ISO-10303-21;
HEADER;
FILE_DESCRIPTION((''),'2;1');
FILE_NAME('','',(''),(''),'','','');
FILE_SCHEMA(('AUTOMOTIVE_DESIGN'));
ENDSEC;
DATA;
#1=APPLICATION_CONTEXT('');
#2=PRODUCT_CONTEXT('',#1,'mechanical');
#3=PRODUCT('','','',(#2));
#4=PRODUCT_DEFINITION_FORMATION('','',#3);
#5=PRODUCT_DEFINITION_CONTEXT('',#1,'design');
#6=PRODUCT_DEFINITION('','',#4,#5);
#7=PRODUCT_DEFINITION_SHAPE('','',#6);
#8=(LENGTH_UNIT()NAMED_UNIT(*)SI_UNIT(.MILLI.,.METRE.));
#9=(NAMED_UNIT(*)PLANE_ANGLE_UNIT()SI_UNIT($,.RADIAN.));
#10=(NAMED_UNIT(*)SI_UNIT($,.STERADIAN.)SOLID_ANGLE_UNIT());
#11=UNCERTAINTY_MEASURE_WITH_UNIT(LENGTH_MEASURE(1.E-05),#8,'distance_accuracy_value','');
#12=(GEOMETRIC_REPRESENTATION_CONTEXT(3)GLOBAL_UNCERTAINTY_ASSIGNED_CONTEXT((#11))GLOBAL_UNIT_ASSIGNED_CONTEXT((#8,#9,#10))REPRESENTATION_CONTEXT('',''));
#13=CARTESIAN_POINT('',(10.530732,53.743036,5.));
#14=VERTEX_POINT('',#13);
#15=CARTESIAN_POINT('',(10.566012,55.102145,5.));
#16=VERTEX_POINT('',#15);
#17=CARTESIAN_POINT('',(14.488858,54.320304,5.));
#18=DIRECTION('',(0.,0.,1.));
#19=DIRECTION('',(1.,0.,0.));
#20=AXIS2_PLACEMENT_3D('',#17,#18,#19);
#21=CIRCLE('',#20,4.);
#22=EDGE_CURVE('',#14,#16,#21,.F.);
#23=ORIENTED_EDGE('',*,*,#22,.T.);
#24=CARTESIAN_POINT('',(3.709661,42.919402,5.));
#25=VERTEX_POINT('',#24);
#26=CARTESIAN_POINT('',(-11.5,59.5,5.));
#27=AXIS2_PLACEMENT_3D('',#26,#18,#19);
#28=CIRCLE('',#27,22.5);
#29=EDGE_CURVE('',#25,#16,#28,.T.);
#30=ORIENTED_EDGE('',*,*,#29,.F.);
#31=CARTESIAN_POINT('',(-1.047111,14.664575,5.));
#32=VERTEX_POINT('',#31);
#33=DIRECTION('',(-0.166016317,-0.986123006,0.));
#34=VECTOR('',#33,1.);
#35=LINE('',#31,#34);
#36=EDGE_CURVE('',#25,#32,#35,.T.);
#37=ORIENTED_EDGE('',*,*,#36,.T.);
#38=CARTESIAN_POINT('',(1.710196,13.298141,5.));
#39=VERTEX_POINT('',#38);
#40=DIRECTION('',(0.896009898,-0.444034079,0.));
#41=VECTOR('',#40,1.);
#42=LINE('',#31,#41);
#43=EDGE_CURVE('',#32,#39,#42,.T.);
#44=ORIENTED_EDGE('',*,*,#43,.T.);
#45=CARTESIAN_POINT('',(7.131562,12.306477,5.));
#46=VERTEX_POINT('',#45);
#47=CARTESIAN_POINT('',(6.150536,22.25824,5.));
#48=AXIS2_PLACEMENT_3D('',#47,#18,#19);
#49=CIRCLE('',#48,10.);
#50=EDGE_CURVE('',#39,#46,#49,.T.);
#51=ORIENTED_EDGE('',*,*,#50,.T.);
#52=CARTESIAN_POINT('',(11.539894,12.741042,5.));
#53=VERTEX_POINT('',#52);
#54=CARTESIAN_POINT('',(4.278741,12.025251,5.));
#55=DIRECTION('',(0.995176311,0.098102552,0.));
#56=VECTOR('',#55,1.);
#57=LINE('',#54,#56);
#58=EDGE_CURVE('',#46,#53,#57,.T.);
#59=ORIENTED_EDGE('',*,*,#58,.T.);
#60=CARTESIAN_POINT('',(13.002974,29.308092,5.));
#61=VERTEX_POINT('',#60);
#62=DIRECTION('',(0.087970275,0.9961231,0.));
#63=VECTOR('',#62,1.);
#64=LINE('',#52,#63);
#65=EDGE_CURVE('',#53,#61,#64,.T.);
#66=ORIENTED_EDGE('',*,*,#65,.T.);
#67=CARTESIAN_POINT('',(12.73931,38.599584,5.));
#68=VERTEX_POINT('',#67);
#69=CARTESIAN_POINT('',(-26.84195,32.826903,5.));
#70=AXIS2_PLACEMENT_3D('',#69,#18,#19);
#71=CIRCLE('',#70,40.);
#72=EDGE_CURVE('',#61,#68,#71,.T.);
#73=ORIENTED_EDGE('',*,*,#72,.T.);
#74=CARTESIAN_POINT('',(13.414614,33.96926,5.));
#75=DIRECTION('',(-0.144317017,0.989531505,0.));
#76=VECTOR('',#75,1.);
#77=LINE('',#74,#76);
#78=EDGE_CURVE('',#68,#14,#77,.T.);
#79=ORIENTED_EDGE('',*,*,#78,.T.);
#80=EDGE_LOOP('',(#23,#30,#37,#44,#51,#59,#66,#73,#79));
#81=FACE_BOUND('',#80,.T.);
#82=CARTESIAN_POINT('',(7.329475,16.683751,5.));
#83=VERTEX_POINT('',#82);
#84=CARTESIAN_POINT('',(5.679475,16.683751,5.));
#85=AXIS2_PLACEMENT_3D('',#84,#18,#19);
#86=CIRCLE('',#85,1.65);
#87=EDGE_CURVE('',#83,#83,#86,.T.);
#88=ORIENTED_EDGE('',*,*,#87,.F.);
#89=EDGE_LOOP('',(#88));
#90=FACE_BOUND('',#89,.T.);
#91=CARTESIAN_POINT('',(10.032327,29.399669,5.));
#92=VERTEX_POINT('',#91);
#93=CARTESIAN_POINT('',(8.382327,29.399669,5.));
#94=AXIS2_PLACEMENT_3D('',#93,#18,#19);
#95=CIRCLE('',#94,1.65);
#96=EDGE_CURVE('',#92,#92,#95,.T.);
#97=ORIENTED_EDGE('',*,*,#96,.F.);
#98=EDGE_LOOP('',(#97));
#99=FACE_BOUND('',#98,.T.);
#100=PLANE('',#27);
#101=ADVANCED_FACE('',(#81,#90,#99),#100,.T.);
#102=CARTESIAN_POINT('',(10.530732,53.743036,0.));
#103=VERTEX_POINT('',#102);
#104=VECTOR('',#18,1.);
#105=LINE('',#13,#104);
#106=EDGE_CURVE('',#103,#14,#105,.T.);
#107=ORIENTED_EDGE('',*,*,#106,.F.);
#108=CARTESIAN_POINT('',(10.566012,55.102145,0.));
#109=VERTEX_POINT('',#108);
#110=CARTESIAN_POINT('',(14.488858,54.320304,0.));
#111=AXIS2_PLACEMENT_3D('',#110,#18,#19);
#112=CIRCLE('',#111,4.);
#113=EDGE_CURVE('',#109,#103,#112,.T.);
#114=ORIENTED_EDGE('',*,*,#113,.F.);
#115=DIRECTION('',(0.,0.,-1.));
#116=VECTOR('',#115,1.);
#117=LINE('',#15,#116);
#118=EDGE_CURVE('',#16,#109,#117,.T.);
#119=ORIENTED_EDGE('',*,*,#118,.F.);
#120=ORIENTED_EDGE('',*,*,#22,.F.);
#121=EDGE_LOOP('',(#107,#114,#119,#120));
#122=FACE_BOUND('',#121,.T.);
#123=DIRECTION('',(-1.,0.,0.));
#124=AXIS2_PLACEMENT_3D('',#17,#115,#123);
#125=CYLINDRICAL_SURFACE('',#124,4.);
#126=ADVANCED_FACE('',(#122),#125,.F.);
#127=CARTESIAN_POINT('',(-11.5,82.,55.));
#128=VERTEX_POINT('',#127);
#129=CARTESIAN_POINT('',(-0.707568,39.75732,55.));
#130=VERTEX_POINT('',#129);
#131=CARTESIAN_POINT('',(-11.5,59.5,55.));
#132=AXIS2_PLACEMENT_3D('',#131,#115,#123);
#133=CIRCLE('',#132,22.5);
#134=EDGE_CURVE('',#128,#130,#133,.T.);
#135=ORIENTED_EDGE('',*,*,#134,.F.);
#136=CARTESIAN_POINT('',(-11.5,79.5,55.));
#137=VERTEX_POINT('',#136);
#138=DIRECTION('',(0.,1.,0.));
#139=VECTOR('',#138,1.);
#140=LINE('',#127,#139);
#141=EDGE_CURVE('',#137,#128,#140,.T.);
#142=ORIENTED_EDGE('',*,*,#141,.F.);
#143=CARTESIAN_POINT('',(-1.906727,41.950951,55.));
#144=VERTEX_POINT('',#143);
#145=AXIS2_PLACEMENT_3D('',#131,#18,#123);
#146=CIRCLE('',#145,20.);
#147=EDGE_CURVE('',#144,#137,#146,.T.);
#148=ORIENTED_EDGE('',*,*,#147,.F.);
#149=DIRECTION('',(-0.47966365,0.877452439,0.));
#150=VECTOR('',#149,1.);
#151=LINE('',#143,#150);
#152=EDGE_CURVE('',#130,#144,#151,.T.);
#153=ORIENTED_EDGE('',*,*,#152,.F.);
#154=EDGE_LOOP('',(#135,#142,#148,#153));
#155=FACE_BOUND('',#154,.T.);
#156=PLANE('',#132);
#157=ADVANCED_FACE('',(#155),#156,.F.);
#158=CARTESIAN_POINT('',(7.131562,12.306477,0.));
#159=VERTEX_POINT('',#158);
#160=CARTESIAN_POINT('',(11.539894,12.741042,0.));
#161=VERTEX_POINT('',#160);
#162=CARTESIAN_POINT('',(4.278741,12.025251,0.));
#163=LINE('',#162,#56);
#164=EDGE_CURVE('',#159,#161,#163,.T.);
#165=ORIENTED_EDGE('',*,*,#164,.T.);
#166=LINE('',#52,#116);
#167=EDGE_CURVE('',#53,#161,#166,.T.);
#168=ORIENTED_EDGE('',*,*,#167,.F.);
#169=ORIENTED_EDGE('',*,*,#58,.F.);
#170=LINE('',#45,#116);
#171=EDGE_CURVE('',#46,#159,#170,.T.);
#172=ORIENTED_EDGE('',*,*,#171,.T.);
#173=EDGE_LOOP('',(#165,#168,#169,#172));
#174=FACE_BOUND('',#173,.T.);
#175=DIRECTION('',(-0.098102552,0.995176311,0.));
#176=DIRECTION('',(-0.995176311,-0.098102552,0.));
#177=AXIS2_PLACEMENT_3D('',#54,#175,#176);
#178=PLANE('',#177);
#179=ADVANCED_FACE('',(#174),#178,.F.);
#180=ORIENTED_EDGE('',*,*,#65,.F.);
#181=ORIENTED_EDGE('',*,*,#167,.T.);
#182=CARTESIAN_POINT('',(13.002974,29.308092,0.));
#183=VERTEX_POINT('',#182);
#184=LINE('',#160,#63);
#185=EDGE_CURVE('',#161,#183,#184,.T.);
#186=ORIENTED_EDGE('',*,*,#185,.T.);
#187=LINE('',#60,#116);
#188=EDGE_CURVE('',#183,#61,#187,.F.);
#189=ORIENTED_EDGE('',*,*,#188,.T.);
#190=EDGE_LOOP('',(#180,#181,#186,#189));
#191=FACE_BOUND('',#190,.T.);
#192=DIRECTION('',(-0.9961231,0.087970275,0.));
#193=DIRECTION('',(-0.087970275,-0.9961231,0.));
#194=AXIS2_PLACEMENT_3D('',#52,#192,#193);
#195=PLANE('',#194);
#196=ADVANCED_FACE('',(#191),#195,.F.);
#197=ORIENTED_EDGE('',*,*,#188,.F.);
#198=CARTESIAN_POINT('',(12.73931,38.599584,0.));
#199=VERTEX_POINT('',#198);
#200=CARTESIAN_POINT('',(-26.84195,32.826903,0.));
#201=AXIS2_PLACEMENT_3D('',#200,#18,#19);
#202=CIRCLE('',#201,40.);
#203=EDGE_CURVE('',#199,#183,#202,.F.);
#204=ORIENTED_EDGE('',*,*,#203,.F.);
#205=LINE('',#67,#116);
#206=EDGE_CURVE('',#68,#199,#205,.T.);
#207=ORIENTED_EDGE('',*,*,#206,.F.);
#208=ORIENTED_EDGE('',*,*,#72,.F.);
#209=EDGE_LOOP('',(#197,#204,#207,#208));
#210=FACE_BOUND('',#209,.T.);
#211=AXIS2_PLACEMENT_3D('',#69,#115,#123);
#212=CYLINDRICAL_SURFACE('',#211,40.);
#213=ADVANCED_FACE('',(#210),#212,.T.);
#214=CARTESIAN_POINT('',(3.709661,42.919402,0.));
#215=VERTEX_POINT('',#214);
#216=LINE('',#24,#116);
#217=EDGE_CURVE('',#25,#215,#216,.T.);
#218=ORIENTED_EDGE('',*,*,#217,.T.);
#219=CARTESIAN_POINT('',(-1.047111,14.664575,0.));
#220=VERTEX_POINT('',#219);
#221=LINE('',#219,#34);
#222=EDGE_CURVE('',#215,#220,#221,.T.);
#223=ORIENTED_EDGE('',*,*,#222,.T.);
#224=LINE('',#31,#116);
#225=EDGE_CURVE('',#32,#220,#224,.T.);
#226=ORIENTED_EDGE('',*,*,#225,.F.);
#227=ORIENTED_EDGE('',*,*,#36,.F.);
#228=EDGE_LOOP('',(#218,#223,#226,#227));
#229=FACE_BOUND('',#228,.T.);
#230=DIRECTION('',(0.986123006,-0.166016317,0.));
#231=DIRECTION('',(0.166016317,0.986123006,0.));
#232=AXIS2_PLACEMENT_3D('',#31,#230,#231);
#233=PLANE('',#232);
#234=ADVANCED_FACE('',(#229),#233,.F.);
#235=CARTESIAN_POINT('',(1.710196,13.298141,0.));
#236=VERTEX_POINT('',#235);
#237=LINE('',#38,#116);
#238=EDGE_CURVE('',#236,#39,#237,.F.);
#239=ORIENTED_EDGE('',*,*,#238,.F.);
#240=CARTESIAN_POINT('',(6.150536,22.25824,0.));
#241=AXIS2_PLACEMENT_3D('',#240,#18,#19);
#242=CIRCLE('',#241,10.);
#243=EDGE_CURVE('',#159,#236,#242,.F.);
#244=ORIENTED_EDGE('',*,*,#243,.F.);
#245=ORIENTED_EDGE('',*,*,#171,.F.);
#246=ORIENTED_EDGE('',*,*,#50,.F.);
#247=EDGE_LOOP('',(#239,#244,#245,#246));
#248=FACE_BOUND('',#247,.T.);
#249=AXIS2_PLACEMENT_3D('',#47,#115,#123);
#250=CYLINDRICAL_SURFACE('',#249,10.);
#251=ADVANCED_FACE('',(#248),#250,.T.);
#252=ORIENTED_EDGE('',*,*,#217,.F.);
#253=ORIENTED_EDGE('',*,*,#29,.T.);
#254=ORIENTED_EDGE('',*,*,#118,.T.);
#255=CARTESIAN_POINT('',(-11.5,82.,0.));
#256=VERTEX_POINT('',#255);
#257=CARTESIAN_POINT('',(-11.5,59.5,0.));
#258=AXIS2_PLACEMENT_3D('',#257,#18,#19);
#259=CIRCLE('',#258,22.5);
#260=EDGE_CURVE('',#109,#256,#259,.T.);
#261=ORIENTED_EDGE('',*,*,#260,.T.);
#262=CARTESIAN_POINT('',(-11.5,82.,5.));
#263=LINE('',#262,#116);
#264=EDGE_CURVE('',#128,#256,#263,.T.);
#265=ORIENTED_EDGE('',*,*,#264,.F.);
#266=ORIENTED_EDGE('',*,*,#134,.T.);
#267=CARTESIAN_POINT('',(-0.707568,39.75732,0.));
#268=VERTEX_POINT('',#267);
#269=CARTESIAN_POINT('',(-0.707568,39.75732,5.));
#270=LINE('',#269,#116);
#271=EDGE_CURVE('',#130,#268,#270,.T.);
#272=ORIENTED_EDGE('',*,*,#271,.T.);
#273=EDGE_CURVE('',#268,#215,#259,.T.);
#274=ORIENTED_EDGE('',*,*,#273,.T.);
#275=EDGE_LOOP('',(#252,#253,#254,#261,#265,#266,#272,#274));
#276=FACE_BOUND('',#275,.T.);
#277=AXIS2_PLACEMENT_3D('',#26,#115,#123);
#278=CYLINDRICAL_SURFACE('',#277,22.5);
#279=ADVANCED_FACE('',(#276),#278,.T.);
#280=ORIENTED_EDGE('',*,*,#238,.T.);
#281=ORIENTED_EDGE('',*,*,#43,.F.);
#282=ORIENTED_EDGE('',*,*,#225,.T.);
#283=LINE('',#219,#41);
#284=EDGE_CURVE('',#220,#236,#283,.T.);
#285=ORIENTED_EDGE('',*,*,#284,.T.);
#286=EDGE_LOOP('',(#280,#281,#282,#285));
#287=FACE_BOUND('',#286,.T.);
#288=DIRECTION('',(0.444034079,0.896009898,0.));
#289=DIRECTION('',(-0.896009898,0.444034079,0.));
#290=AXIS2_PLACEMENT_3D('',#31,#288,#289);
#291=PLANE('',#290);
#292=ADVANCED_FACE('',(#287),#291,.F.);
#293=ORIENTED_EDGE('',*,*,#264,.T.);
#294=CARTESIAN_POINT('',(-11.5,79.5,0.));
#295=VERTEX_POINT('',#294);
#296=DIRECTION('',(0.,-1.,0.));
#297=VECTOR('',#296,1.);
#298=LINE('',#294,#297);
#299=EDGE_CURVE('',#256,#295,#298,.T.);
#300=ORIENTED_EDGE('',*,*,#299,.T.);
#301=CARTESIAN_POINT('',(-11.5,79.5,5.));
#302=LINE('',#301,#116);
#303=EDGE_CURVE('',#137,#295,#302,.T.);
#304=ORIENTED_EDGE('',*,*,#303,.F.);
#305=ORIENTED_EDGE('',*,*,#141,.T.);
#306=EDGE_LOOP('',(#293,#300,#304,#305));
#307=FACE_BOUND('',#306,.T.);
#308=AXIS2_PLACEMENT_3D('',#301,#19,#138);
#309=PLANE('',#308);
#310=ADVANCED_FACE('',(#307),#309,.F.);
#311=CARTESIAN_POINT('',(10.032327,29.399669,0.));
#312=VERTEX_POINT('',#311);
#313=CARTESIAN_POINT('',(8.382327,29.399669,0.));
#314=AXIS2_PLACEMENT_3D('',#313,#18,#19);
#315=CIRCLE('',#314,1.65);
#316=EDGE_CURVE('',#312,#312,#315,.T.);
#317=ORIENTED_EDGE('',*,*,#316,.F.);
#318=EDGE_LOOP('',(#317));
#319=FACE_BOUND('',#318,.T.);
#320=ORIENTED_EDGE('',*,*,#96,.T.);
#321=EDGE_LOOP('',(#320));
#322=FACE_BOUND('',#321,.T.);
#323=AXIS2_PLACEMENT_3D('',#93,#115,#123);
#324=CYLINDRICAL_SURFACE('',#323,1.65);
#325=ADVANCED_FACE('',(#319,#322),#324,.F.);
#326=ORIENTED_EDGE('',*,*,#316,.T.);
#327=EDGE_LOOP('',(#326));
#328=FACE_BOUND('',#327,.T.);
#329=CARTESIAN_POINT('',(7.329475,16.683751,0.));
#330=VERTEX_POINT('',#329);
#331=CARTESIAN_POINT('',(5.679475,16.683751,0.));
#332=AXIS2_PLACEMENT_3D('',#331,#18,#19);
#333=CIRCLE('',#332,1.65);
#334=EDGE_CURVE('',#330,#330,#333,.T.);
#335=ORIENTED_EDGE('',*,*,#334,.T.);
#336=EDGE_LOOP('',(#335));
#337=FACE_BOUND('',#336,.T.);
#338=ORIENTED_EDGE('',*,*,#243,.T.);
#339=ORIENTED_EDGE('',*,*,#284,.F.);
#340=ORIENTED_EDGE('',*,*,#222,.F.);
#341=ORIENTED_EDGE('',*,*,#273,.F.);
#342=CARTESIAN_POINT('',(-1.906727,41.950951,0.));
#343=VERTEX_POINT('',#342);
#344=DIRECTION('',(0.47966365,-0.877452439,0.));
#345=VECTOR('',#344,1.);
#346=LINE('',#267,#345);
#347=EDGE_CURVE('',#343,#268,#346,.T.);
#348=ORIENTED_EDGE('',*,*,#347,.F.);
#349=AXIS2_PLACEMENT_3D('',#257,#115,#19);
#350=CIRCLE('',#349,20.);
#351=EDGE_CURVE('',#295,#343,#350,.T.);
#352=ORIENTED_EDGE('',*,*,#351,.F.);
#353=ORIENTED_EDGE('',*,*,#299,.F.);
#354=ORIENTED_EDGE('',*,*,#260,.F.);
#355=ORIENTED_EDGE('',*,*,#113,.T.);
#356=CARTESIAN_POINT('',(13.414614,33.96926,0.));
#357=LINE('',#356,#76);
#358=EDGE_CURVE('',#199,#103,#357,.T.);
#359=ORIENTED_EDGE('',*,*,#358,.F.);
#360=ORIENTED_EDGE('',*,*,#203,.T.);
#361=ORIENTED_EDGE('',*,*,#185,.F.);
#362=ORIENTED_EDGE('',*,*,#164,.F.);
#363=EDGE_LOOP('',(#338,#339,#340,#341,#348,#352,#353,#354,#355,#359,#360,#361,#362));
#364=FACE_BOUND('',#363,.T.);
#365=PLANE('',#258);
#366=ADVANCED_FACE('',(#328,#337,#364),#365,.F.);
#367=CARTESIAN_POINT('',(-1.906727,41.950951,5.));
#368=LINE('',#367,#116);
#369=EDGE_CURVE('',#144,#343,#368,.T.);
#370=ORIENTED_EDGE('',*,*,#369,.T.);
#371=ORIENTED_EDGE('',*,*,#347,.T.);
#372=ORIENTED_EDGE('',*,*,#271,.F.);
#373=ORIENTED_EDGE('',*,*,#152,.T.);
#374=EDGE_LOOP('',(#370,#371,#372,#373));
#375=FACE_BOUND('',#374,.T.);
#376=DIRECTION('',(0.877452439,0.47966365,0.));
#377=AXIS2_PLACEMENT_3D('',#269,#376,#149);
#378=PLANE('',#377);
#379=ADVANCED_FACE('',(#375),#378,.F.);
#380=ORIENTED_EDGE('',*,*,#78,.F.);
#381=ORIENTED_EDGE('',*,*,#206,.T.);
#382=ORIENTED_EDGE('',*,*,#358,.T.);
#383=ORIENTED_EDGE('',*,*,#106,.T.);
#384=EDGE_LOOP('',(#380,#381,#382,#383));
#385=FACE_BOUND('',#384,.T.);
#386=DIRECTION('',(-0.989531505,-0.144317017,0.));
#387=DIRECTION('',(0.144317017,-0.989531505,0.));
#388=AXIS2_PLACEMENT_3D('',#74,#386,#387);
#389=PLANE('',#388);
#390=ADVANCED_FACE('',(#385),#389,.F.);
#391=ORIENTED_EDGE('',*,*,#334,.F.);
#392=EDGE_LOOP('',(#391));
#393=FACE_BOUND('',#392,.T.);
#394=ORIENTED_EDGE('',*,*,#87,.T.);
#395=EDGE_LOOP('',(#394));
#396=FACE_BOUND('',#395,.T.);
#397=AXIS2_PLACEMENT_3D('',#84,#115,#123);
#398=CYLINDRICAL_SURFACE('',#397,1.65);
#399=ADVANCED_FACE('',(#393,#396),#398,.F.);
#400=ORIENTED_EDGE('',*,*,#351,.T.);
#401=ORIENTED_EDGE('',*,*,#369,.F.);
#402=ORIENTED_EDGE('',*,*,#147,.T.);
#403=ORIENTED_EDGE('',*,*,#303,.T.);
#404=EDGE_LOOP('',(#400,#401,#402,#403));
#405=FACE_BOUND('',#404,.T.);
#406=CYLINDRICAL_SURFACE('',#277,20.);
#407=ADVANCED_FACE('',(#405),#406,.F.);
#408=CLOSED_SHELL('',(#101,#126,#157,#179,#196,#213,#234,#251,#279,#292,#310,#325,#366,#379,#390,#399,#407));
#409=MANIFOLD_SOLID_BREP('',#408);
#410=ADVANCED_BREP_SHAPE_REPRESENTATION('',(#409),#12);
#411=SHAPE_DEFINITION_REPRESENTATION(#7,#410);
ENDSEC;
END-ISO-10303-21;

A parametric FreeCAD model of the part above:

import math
import FreeCAD as App
import Part
import Sketcher

V = App.Vector
Q = App.Units.Quantity


def edges_at(feature, points):
    """Names of the edges that pass closest to the given points."""
    edges = feature.Shape.Edges
    near = lambda p: min(range(len(edges)), key=lambda i: edges[i].distToShape(Part.Vertex(*p))[0])
    return sorted({f"Edge{near(p) + 1}" for p in points})

doc = App.newDocument("Part")
body = doc.addObject("PartDesign::Body", "Body")

sketch1 = body.newObject("Sketcher::SketchObject", "Sketch")
sketch1.AttachmentSupport = (doc.getObject("XY_Plane"), [""])
sketch1.MapMode = "FlatFace"
sketch1.addGeometry([
    Part.LineSegment(V(-11.5, 82, 0), V(-11.5, 79.5, 0)),
    Part.ArcOfCircle(Part.Circle(V(-11.5, 59.5, 0), V(0, 0, 1), 20), math.radians(-61.336563), math.radians(90)),
    Part.LineSegment(V(-1.906727, 41.950951, 0), V(-0.707568, 39.75732, 0)),
    Part.ArcOfCircle(Part.Circle(V(-11.5, 59.5, 0), V(0, 0, 1), 22.5), math.radians(-61.336563), math.radians(-47.469319)),
    Part.LineSegment(V(3.709661, 42.919402, 0), V(-1.047111, 14.664575, 0)),
    Part.LineSegment(V(-1.047111, 14.664575, 0), V(4.278741, 12.025251, 0)),
    Part.LineSegment(V(4.278741, 12.025251, 0), V(11.539894, 12.741042, 0)),
    Part.LineSegment(V(11.539894, 12.741042, 0), V(13.414614, 33.96926, 0)),
    Part.LineSegment(V(13.414614, 33.96926, 0), V(10.426978, 54.454443, 0)),
    Part.ArcOfCircle(Part.Circle(V(-11.5, 59.5, 0), V(0, 0, 1), 22.5), math.radians(-12.958602), math.radians(90)),
    Part.Circle(V(5.679475, 16.683751, 0), V(0, 0, 1), 1.65),
    Part.Circle(V(8.382327, 29.399669, 0), V(0, 0, 1), 1.65),
], False)
sketch1.addConstraint([
    Sketcher.Constraint("Coincident", 0, 2, 1, 2),
    Sketcher.Constraint("Coincident", 1, 1, 2, 1),
    Sketcher.Constraint("Coincident", 2, 2, 3, 1),
    Sketcher.Constraint("Coincident", 3, 2, 4, 1),
    Sketcher.Constraint("Coincident", 4, 2, 5, 1),
    Sketcher.Constraint("Coincident", 5, 2, 6, 1),
    Sketcher.Constraint("Coincident", 6, 2, 7, 1),
    Sketcher.Constraint("Coincident", 7, 2, 8, 1),
    Sketcher.Constraint("Coincident", 8, 2, 9, 1),
    Sketcher.Constraint("Coincident", 9, 2, 0, 1),
    Sketcher.Constraint("Vertical", 0),
    Sketcher.Constraint("Coincident", 3, 3, 1, 3),
    Sketcher.Constraint("Coincident", 9, 3, 1, 3),
    Sketcher.Constraint("Equal", 3, 9),
    Sketcher.Constraint("Equal", 10, 11),
    Sketcher.Constraint("Vertical", 9, 3, 0, 2),
    Sketcher.Constraint("Radius", 1, Q("20 mm")),
    Sketcher.Constraint("Diameter", 10, Q("3.3 mm")),
    Sketcher.Constraint("Radius", 3, Q("22.5 mm")),
    Sketcher.Constraint("DistanceY", -1, 1, 9, 2, Q("82 mm")),
    Sketcher.Constraint("DistanceX", 1, 3, -1, 1, Q("11.5 mm")),
    Sketcher.Constraint("Distance", 8, Q("20.7019 mm")),
    Sketcher.Constraint("DistanceY", 10, 3, 1, 1, Q("25.267201 mm")),
    Sketcher.Constraint("DistanceY", 5, 2, 10, 3, Q("4.658499 mm")),
    Sketcher.Constraint("Distance", 6, Q("7.296348 mm")),
    Sketcher.Constraint("Distance", 7, Q("21.310839 mm")),
    Sketcher.Constraint("DistanceY", -1, 1, 10, 3, Q("16.683751 mm")),
    Sketcher.Constraint("DistanceY", -1, 1, 11, 3, Q("29.399669 mm")),
    Sketcher.Constraint("DistanceY", -1, 1, 2, 2, Q("39.75732 mm")),
    Sketcher.Constraint("DistanceX", -1, 1, 3, 2, Q("3.709661 mm")),
    Sketcher.Constraint("DistanceX", 4, 2, -1, 1, Q("1.047111 mm")),
    Sketcher.Constraint("DistanceX", -1, 1, 5, 2, Q("4.278741 mm")),
    Sketcher.Constraint("DistanceY", -1, 1, 6, 2, Q("12.741042 mm")),
    Sketcher.Constraint("DistanceY", -1, 1, 7, 2, Q("33.96926 mm")),
    Sketcher.Constraint("DistanceX", 10, 3, 11, 3, Q("2.702852 mm")),
    Sketcher.Constraint("DistanceX", 4, 2, 11, 3, Q("9.429439 mm")),
    Sketcher.Constraint("Distance", 4, Q("28.652437 mm")),
])
pad1 = body.newObject("PartDesign::Pad", "Pad")
pad1.Profile = sketch1
pad1.Length = 5
doc.recompute()

fillet = body.newObject("PartDesign::Fillet", "Fillet")
fillet.Base = (pad1, edges_at(pad1, [(10.427, 54.454, 2.5)]))
fillet.Radius = 4
doc.recompute()

fillet2 = body.newObject("PartDesign::Fillet", "Fillet001")
fillet2.Base = (fillet, edges_at(fillet, [(13.415, 33.969, 2.5)]))
fillet2.Radius = 40
doc.recompute()

fillet3 = body.newObject("PartDesign::Fillet", "Fillet002")
fillet3.Base = (fillet2, edges_at(fillet2, [(4.279, 12.025, 2.5)]))
fillet3.Radius = 10

sketch2 = body.newObject("Sketcher::SketchObject", "Sketch001")
sketch2.AttachmentSupport = (doc.getObject("XY_Plane"), [""])
sketch2.MapMode = "FlatFace"
sketch2.addGeometry([
    Part.LineSegment(V(-11.5, 79.5, 0), V(-11.5, 82, 0)),
    Part.ArcOfCircle(Part.Circle(V(-11.5, 59.5, 0), V(0, 0, 1), 22.5), math.radians(-61.336563), math.radians(90)),
    Part.LineSegment(V(-0.707568, 39.75732, 0), V(-1.906727, 41.950951, 0)),
    Part.ArcOfCircle(Part.Circle(V(-11.5, 59.5, 0), V(0, 0, 1), 20), math.radians(-61.336563), math.radians(90)),
], False)
sketch2.addConstraint([
    Sketcher.Constraint("Coincident", 0, 2, 1, 2),
    Sketcher.Constraint("Coincident", 1, 1, 2, 1),
    Sketcher.Constraint("Coincident", 2, 2, 3, 1),
    Sketcher.Constraint("Coincident", 3, 2, 0, 1),
    Sketcher.Constraint("Vertical", 0),
    Sketcher.Constraint("Coincident", 3, 3, 1, 3),
    Sketcher.Constraint("Vertical", 3, 3, 0, 2),
    Sketcher.Constraint("Radius", 3, Q("20 mm")),
    Sketcher.Constraint("Radius", 1, Q("22.5 mm")),
    Sketcher.Constraint("DistanceY", -1, 1, 0, 2, Q("82 mm")),
    Sketcher.Constraint("DistanceX", 1, 3, -1, 1, Q("11.5 mm")),
    Sketcher.Constraint("DistanceY", -1, 1, 1, 1, Q("39.75732 mm")),
    Sketcher.Constraint("DistanceY", -1, 1, 2, 2, Q("41.950951 mm")),
])
pad2 = body.newObject("PartDesign::Pad", "Pad001")
pad2.Profile = sketch2
pad2.Length = 55

doc.recompute()
